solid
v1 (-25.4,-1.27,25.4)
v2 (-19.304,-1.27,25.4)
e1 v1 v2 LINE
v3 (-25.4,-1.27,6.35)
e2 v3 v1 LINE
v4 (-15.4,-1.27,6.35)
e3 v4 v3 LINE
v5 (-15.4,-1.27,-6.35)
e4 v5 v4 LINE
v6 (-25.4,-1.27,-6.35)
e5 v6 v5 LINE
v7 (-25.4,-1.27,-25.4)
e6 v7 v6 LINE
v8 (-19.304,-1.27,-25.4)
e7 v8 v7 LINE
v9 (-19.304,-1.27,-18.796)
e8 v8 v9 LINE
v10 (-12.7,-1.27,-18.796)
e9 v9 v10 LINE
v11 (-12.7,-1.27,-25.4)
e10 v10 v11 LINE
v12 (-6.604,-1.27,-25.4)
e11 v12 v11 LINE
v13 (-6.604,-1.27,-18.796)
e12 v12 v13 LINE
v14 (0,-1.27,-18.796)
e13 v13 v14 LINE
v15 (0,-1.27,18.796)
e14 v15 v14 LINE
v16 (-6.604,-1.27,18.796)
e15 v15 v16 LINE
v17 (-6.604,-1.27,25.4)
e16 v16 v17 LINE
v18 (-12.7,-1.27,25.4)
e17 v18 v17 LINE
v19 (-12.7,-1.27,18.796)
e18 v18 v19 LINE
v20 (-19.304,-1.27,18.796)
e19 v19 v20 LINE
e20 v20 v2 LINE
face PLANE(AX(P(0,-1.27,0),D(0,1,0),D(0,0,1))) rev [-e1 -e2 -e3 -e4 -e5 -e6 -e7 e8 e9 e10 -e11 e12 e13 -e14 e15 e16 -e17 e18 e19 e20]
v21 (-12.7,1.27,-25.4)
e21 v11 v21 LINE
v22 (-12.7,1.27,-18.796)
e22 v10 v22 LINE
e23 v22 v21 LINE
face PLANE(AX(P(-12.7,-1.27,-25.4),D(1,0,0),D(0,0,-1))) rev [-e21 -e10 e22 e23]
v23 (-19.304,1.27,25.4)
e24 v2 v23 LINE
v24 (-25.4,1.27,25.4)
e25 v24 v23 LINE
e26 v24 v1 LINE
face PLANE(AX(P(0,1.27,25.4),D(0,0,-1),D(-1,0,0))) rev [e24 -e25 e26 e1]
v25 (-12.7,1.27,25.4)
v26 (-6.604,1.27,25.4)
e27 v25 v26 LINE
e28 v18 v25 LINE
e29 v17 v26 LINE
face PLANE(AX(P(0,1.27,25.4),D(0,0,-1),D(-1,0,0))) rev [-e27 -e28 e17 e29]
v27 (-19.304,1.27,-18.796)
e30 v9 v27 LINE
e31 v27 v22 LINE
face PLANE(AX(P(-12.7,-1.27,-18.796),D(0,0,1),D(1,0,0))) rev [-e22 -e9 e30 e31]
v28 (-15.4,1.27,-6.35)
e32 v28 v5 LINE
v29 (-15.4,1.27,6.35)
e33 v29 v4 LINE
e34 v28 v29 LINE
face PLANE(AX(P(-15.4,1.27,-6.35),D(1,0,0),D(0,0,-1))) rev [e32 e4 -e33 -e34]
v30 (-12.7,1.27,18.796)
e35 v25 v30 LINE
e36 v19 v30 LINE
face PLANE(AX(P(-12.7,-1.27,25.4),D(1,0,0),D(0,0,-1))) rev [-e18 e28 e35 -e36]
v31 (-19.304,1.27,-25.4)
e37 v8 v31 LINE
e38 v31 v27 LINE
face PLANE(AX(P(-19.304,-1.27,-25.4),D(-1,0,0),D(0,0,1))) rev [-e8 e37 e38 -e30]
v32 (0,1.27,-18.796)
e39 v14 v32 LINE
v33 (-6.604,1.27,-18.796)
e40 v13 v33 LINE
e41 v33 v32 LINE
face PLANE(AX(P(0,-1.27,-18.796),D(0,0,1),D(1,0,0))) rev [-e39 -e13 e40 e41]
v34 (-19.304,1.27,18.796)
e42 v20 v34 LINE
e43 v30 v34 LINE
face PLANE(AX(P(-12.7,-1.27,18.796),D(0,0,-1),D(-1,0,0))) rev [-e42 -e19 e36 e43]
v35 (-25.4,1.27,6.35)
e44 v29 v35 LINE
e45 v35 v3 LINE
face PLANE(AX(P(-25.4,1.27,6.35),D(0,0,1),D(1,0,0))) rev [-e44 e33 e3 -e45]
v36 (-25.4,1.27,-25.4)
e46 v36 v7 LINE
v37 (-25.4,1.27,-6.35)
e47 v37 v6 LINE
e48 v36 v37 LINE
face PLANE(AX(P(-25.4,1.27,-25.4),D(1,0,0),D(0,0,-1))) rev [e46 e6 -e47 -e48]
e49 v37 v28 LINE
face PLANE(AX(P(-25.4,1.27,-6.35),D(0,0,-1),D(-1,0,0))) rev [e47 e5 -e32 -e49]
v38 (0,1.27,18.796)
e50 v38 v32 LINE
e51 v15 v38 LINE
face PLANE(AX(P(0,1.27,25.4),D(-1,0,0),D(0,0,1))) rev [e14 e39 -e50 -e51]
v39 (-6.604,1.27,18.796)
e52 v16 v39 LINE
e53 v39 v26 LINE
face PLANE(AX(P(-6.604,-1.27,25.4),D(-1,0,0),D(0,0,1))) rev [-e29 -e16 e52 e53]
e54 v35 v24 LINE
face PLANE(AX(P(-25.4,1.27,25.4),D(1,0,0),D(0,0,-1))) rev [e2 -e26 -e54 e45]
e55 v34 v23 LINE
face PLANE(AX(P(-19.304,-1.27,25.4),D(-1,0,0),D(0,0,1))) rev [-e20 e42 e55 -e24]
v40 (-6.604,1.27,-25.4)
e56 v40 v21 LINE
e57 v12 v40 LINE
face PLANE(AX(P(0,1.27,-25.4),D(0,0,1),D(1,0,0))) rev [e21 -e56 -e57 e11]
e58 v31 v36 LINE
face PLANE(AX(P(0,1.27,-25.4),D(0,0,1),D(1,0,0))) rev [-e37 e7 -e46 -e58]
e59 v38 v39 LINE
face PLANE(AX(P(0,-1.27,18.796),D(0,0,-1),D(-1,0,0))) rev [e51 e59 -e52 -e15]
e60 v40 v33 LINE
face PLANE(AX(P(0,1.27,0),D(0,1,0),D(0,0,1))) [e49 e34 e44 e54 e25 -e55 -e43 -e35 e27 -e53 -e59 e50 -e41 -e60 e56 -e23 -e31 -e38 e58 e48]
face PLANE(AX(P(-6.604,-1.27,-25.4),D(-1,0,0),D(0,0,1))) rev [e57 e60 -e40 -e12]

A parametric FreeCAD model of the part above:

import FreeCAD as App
import Part
import Sketcher

V = App.Vector
Q = App.Units.Quantity

doc = App.newDocument("Part")
params = doc.addObject("Spreadsheet::Sheet", "Params")
for row, (alias, value) in enumerate([
    ("sketch1_width", "1 in"),
    ("sketch1_height", "2 in"),
    ("sketch1_height2", "0.5 in"),
    ("pad1_length", "0.1 in"),
    ("sketch2_width", "0.26 in"),
], start=1):
    params.set(f"A{row}", alias)
    params.set(f"B{row}", "=" + value)
    params.setAlias(f"B{row}", alias)

body = doc.addObject("PartDesign::Body", "Body")

# Sketch on XZ plane
sketch1 = body.newObject("Sketcher::SketchObject", "Sketch")
sketch1.AttachmentSupport = (doc.getObject("XZ_Plane"), [""])
sketch1.MapMode = "FlatFace"
sketch1.addGeometry([
    Part.LineSegment(V(0, 25, 0), V(0, -25, 0)),  # 0
    Part.LineSegment(V(0, -25, 0), V(-25, -25, 0)),  # 1
    Part.LineSegment(V(-25, -25, 0), V(-25, -6, 0)),  # 2
    Part.LineSegment(V(-25, -6, 0), V(-15, -6, 0)),  # 3
    Part.LineSegment(V(-15, -6, 0), V(-15, 6, 0)),  # 4
    Part.LineSegment(V(-15, 6, 0), V(-25, 6, 0)),  # 5
    Part.LineSegment(V(-25, 6, 0), V(-25, 25, 0)),  # 6
    Part.LineSegment(V(-25, 25, 0), V(0, 25, 0)),  # 7
], False)
sketch1.addConstraint([
    Sketcher.Constraint("Coincident", 0, 2, 1, 1),
    Sketcher.Constraint("Coincident", 1, 2, 2, 1),
    Sketcher.Constraint("Coincident", 2, 2, 3, 1),
    Sketcher.Constraint("Coincident", 3, 2, 4, 1),
    Sketcher.Constraint("Coincident", 4, 2, 5, 1),
    Sketcher.Constraint("Coincident", 5, 2, 6, 1),
    Sketcher.Constraint("Coincident", 6, 2, 7, 1),
    Sketcher.Constraint("Coincident", 7, 2, 0, 1),
    Sketcher.Constraint("Vertical", 0),
    Sketcher.Constraint("Horizontal", 1),
    Sketcher.Constraint("Vertical", 2),
    Sketcher.Constraint("Horizontal", 3),
    Sketcher.Constraint("Vertical", 4),
    Sketcher.Constraint("Horizontal", 5),
    Sketcher.Constraint("Vertical", 6),
    Sketcher.Constraint("Horizontal", 7),
    Sketcher.Constraint("Symmetric", 0, 2, 7, 2, -1, 1),
    Sketcher.Constraint("Symmetric", 2, 2, 5, 2, -1),
    Sketcher.Constraint("DistanceX", 1, 2, 1, 1, Q("1 in")),
    Sketcher.Constraint("DistanceY", 0, 2, 0, 1, Q("2 in")),
    Sketcher.Constraint("DistanceY", 4, 1, 4, 2, Q("0.5 in")),
    Sketcher.Constraint("DistanceX", 3, 1, 3, 2, 10.0),
])
sketch1.setExpression("Constraints[18]", "Params.sketch1_width")
sketch1.setExpression("Constraints[19]", "Params.sketch1_height")
sketch1.setExpression("Constraints[20]", "Params.sketch1_height2")
pad1 = body.newObject("PartDesign::Pad", "Pad")
pad1.Profile = sketch1
pad1.setExpression("Length", "Params.pad1_length")
pad1.Midplane = True

# Sketch on XZ plane
sketch2 = body.newObject("Sketcher::SketchObject", "Sketch001")
sketch2.AttachmentSupport = (doc.getObject("XZ_Plane"), [""])
sketch2.MapMode = "FlatFace"
sketch2.AttachmentOffset = App.Placement(V(0, 0, -0.05 * 25.4), App.Rotation())
sketch2.addGeometry([
    Part.LineSegment(V(-7, -25, 0), V(-7, -19, 0)),  # 0
    Part.LineSegment(V(-7, -19, 0), V(0, -19, 0)),  # 1
    Part.LineSegment(V(0, -19, 0), V(0, -25, 0)),  # 2
    Part.LineSegment(V(0, -25, 0), V(-7, -25, 0)),  # 3
    Part.LineSegment(V(-19, -25, 0), V(-19, -19, 0)),  # 4
    Part.LineSegment(V(-19, -19, 0), V(-13, -19, 0)),  # 5
    Part.LineSegment(V(-13, -19, 0), V(-13, -25, 0)),  # 6
    Part.LineSegment(V(-13, -25, 0), V(-19, -25, 0)),  # 7
    Part.LineSegment(V(-19, 19, 0), V(-19, 25, 0)),  # 8
    Part.LineSegment(V(-19, 25, 0), V(-13, 25, 0)),  # 9
    Part.LineSegment(V(-13, 25, 0), V(-13, 19, 0)),  # 10
    Part.LineSegment(V(-13, 19, 0), V(-19, 19, 0)),  # 11
    Part.LineSegment(V(-7, 19, 0), V(-7, 25, 0)),  # 12
    Part.LineSegment(V(-7, 25, 0), V(0, 25, 0)),  # 13
    Part.LineSegment(V(0, 25, 0), V(0, 19, 0)),  # 14
    Part.LineSegment(V(0, 19, 0), V(-7, 19, 0)),  # 15
], False)
sketch2.addConstraint([
    Sketcher.Constraint("Coincident", 0, 2, 1, 1),
    Sketcher.Constraint("Coincident", 1, 2, 2, 1),
    Sketcher.Constraint("Coincident", 2, 2, 3, 1),
    Sketcher.Constraint("Coincident", 3, 2, 0, 1),
    Sketcher.Constraint("Coincident", 4, 2, 5, 1),
    Sketcher.Constraint("Coincident", 5, 2, 6, 1),
    Sketcher.Constraint("Coincident", 6, 2, 7, 1),
    Sketcher.Constraint("Coincident", 7, 2, 4, 1),
    Sketcher.Constraint("Coincident", 8, 2, 9, 1),
    Sketcher.Constraint("Coincident", 9, 2, 10, 1),
    Sketcher.Constraint("Coincident", 10, 2, 11, 1),
    Sketcher.Constraint("Coincident", 11, 2, 8, 1),
    Sketcher.Constraint("Coincident", 12, 2, 13, 1),
    Sketcher.Constraint("Coincident", 13, 2, 14, 1),
    Sketcher.Constraint("Coincident", 14, 2, 15, 1),
    Sketcher.Constraint("Coincident", 15, 2, 12, 1),
    Sketcher.Constraint("Vertical", 0),
    Sketcher.Constraint("Horizontal", 1),
    Sketcher.Constraint("Vertical", 2),
    Sketcher.Constraint("Horizontal", 3),
    Sketcher.Constraint("Vertical", 4),
    Sketcher.Constraint("Horizontal", 5),
    Sketcher.Constraint("Vertical", 6),
    Sketcher.Constraint("Horizontal", 7),
    Sketcher.Constraint("Vertical", 8),
    Sketcher.Constraint("Horizontal", 9),
    Sketcher.Constraint("Vertical", 10),
    Sketcher.Constraint("Horizontal", 11),
    Sketcher.Constraint("Vertical", 12),
    Sketcher.Constraint("Horizontal", 13),
    Sketcher.Constraint("Vertical", 14),
    Sketcher.Constraint("Horizontal", 15),
    Sketcher.Constraint("Symmetric", 2, 2, 13, 2, -1, 1),
    Sketcher.Constraint("Symmetric", 7, 2, 8, 2, -1),
    Sketcher.Constraint("Symmetric", 5, 2, 10, 2, -1),
    Sketcher.Constraint("Symmetric", 1, 2, 14, 2, -1),
    Sketcher.Constraint("Horizontal", 1, 2, 4, 2),
    Sketcher.Constraint("Horizontal", 3, 2, 6, 2),
    Sketcher.Constraint("Vertical", 3, 2, 12, 2),
    Sketcher.Constraint("Equal", 3, 5),
    Sketcher.Constraint("Equal", 15, 0),
    Sketcher.Constraint("DistanceY", 2, 2, -1, 1, Q("1 in")),
    Sketcher.Constraint("DistanceX", 1, 1, 1, 2, Q("0.26 in")),
    Sketcher.Constraint("DistanceX", 5, 2, -1, 1, Q("0.5 in")),
])
sketch2.setExpression("Constraints[42]", "Params.sketch2_width")
pocket1 = body.newObject("PartDesign::Pocket", "Pocket")
pocket1.Profile = sketch2
pocket1.Type = "ThroughAll"
pocket1.Reversed = True

doc.recompute()
